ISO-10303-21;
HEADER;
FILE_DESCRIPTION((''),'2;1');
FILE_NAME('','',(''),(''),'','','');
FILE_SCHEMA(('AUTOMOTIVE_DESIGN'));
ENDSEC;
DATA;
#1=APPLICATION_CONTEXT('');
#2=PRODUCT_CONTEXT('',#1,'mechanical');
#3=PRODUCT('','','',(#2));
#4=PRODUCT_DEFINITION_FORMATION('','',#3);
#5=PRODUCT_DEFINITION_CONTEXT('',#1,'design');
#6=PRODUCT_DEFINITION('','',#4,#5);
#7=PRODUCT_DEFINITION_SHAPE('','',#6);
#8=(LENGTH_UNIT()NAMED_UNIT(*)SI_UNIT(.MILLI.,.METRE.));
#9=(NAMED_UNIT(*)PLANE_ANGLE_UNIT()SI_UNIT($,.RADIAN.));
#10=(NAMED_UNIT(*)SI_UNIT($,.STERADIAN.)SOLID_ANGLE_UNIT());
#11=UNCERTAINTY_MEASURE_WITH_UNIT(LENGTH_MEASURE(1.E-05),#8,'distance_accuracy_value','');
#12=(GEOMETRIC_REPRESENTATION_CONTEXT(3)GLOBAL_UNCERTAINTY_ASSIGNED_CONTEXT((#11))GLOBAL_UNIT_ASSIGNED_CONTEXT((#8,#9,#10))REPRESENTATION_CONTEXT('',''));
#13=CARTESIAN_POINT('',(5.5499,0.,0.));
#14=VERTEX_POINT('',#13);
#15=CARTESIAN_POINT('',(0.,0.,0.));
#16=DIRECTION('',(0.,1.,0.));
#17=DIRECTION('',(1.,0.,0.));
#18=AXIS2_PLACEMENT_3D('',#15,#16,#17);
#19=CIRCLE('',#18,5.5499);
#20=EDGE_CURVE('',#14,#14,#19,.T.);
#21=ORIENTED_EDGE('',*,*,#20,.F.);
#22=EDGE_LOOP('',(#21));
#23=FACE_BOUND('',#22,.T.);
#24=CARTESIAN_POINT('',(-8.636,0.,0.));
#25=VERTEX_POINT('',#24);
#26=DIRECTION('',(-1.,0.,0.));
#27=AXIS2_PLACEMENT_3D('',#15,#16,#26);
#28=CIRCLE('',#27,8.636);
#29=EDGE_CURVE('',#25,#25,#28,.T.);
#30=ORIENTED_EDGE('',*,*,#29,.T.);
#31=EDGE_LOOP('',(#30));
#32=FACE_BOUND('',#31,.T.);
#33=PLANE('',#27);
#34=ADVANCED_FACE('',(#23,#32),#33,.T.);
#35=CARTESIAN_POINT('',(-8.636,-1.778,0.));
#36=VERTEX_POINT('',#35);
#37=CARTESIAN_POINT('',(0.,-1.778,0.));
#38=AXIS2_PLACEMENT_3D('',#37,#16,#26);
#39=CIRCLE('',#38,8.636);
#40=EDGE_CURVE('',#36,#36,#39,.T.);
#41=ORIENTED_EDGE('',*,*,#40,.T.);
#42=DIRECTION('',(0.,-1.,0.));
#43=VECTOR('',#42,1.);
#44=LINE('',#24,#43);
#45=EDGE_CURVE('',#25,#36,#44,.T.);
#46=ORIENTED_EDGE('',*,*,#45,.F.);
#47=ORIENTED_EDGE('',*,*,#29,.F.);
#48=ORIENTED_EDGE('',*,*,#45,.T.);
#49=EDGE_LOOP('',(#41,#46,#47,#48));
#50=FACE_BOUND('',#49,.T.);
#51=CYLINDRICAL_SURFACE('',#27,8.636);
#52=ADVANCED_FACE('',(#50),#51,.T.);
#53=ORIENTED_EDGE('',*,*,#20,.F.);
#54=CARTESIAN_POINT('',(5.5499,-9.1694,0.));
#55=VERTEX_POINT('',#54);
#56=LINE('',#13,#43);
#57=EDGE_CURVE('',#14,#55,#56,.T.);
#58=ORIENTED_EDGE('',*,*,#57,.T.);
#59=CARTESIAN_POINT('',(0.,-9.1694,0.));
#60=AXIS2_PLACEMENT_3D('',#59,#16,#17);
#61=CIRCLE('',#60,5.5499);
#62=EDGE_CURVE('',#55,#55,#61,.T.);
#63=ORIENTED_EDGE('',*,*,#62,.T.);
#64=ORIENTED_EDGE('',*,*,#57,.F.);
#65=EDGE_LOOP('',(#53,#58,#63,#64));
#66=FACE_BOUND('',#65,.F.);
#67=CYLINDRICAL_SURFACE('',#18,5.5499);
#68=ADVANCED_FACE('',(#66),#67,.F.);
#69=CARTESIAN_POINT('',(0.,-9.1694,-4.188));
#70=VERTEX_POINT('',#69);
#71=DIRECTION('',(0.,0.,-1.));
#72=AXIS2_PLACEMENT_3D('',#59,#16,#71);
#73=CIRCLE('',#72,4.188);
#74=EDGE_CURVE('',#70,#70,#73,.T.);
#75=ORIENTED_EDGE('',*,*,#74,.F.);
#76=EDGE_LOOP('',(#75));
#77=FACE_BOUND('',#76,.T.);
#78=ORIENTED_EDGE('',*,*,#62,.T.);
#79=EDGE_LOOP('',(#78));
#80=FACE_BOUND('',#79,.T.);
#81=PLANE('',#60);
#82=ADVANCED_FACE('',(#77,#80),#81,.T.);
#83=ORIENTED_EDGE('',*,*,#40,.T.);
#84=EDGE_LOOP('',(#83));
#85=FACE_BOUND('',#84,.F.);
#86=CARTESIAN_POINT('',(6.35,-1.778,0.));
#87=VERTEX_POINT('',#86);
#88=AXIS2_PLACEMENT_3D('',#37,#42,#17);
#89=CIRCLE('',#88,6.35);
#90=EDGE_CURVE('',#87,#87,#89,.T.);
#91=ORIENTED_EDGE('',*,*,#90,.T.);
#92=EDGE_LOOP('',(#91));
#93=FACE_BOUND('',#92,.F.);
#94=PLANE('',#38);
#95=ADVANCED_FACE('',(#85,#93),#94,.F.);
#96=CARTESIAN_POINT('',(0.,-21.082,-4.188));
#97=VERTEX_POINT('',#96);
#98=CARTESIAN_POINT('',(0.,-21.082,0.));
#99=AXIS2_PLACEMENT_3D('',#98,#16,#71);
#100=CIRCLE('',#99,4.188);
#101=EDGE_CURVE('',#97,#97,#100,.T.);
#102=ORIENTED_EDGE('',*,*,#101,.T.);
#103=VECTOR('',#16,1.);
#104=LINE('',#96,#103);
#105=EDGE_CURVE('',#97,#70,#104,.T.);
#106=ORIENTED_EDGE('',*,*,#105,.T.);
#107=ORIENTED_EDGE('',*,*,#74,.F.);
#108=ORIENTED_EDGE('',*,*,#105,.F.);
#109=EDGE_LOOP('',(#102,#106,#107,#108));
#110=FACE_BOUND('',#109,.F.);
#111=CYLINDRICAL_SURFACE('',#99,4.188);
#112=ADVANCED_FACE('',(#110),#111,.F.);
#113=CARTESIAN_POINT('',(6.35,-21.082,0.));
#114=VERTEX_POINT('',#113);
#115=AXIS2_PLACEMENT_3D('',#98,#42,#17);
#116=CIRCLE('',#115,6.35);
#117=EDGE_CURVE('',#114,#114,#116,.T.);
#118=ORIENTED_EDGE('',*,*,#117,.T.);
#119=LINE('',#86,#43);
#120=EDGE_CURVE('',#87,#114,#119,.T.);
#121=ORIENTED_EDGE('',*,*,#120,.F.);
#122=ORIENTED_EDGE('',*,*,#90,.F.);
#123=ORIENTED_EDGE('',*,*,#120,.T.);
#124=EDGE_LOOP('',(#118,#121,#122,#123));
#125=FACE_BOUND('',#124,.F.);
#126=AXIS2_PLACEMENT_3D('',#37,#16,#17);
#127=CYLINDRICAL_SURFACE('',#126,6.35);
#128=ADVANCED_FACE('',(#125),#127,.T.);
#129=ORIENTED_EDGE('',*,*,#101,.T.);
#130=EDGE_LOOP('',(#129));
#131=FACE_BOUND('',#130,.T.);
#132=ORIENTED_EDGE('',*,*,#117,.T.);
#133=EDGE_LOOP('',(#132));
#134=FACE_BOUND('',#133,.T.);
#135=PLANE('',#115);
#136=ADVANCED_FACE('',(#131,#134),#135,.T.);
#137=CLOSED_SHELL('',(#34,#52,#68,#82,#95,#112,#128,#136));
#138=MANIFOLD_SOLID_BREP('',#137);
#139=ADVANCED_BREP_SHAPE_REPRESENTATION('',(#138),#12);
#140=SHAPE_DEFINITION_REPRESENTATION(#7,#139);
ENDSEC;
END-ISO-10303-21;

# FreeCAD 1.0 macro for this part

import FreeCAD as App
import Part
import Sketcher

V = App.Vector
Q = App.Units.Quantity

doc = App.newDocument("Part")
body = doc.addObject("PartDesign::Body", "Body")

# Sketch on XZ plane
sketch1 = body.newObject("Sketcher::SketchObject", "Sketch")
sketch1.AttachmentSupport = (doc.getObject("XZ_Plane"), [""])
sketch1.MapMode = "FlatFace"
sketch1.addGeometry(Part.Circle(V(0, 0, 0), V(0, 0, 1), 9), False)
sketch1.addConstraint([
    Sketcher.Constraint("Coincident", 0, 3, -1, 1),
    Sketcher.Constraint("Diameter", 0, Q("0.68 in")),
])
pad1 = body.newObject("PartDesign::Pad", "Pad")
pad1.Profile = sketch1
pad1.Length = Q("0.07 in")

# Sketch on XZ plane
sketch2 = body.newObject("Sketcher::SketchObject", "Sketch001")
sketch2.AttachmentSupport = (doc.getObject("XZ_Plane"), [""])
sketch2.MapMode = "FlatFace"
sketch2.AttachmentOffset = App.Placement(V(0, 0, 0.07 * 25.4), App.Rotation())
sketch2.addGeometry(Part.Circle(V(0, 0, 0), V(0, 0, 1), 6), False)
sketch2.addConstraint([
    Sketcher.Constraint("Coincident", 0, 3, -1, 1),
    Sketcher.Constraint("Diameter", 0, Q("0.5 in")),
])
pad2 = body.newObject("PartDesign::Pad", "Pad001")
pad2.Profile = sketch2
pad2.Length = Q("0.76 in")

# Sketch on XZ plane
sketch3 = body.newObject("Sketcher::SketchObject", "Sketch002")
sketch3.AttachmentSupport = (doc.getObject("XZ_Plane"), [""])
sketch3.MapMode = "FlatFace"
sketch3.AttachmentOffset = App.Placement(V(0, 0, 0.83 * 25.4), App.Rotation())
sketch3.addGeometry(Part.Circle(V(0, 0, 0), V(0, 0, 1), 4.2), False)
sketch3.addConstraint([
    Sketcher.Constraint("Coincident", 0, 3, -1, 1),
    Sketcher.Constraint("Diameter", 0, 8.376),
])
doc.recompute()
hole = body.newObject("PartDesign::Hole", "Hole")
hole.Profile = sketch3
hole.ThreadType = "None"
hole.Diameter = 8.376
hole.DepthType = "ThroughAll"

# Sketch on XZ plane
sketch4 = body.newObject("Sketcher::SketchObject", "Sketch003")
sketch4.AttachmentSupport = (doc.getObject("XZ_Plane"), [""])
sketch4.MapMode = "FlatFace"
sketch4.addGeometry(Part.Circle(V(0, 0, 0), V(0, 0, 1), 6), False)
sketch4.addConstraint([
    Sketcher.Constraint("Coincident", 0, 3, -1, 1),
    Sketcher.Constraint("Diameter", 0, Q("0.437 in")),
])
pocket1 = body.newObject("PartDesign::Pocket", "Pocket")
pocket1.Profile = sketch4
pocket1.Length = Q("0.361 in")
pocket1.Reversed = True

doc.recompute()
